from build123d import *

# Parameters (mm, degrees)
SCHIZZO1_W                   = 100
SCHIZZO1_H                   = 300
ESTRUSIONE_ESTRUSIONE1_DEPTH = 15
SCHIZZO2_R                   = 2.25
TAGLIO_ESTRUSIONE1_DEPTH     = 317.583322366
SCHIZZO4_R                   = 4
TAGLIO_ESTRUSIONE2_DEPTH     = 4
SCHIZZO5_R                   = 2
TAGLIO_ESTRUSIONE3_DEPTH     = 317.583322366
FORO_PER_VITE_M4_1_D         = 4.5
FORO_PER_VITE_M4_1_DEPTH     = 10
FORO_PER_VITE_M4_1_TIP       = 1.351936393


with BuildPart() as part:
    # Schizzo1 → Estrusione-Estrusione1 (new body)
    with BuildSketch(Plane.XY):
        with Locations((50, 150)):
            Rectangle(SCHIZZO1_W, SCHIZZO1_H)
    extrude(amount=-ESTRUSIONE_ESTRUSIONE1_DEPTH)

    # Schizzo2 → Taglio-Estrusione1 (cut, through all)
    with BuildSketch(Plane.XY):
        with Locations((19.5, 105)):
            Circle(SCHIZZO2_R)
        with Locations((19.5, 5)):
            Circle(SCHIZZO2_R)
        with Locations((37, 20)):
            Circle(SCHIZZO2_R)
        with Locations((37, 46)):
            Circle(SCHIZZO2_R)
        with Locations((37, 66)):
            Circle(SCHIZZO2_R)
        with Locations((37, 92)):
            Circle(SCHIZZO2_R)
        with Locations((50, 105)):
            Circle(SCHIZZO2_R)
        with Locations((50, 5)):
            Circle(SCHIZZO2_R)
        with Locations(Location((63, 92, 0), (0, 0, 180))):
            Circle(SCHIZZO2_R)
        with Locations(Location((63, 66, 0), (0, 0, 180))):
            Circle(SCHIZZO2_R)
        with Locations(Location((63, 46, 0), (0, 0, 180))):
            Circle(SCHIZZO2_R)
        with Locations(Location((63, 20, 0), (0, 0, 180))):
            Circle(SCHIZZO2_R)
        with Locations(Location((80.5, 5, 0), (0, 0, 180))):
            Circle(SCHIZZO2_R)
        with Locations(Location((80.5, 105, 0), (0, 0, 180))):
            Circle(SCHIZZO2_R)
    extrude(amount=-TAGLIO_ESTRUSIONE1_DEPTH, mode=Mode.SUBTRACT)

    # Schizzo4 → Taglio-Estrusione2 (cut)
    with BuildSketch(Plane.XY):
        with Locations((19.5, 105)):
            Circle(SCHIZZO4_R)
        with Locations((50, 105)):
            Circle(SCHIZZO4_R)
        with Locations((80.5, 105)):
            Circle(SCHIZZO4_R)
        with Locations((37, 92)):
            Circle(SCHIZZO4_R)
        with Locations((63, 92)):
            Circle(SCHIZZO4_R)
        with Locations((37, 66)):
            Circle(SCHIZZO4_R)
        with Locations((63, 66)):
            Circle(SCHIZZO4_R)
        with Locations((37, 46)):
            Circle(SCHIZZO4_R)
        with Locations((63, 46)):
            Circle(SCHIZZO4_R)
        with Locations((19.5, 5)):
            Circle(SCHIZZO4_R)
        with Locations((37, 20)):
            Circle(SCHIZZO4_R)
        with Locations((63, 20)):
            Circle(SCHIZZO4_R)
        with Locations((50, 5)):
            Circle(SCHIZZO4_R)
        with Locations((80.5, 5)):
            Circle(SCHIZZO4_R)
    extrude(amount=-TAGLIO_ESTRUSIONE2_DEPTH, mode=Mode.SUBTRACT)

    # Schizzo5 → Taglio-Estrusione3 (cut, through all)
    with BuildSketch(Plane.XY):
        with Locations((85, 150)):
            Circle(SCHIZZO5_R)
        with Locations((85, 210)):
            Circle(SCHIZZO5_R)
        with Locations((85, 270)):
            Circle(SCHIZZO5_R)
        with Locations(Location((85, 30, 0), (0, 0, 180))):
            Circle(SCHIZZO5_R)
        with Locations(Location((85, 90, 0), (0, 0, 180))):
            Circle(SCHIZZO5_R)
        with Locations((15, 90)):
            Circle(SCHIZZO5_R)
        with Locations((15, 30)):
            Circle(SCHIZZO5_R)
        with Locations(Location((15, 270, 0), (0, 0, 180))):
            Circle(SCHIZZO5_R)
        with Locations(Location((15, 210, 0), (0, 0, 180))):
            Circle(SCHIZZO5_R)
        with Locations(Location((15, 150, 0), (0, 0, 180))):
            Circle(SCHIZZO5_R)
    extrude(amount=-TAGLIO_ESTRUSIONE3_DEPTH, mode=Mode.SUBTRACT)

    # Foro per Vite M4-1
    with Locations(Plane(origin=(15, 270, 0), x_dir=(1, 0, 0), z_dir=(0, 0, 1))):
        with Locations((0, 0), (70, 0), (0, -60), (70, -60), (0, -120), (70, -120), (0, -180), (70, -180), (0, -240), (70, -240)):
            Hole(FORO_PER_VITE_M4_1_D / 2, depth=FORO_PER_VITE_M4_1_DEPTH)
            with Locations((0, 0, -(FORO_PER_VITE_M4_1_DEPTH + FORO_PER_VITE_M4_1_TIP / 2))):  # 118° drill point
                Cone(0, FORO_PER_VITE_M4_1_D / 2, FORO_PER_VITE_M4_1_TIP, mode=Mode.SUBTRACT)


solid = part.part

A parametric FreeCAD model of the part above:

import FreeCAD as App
import Part
import Sketcher
Q = App.Units.Quantity


def add_polygon(sketch, points):
    """Adds a closed chain of lines whose ends are joined by coincident constraints."""
    first, n = sketch.GeometryCount, len(points)
    for a, b in zip(points, points[1:] + points[:1]):
        sketch.addGeometry(Part.LineSegment(App.Vector(*a, 0), App.Vector(*b, 0)), False)
    for i in range(n):
        sketch.addConstraint(Sketcher.Constraint("Coincident", first + i, 2, first + (i + 1) % n, 1))

doc = App.newDocument("Part")
body = doc.addObject("PartDesign::Body", "Body")

# Sketch on XY plane
sketch1 = body.newObject("Sketcher::SketchObject", "Sketch")
sketch1.AttachmentSupport = (doc.getObject("XY_Plane"), [""])
sketch1.MapMode = "FlatFace"
add_polygon(sketch1, [(0, 300), (0, 0), (100, 0), (100, 300)])  # lines 0-3
sketch1.addConstraint(Sketcher.Constraint("Vertical", 0))
sketch1.addConstraint(Sketcher.Constraint("Horizontal", 1))
sketch1.addConstraint(Sketcher.Constraint("Vertical", 2))
sketch1.addConstraint(Sketcher.Constraint("Horizontal", 3))
sketch1.addConstraint(Sketcher.Constraint("Coincident", 0, 2, -1, 1))
sketch1.addConstraint(Sketcher.Constraint("DistanceX", 1, 1, 1, 2, Q("100 mm")))
sketch1.addConstraint(Sketcher.Constraint("DistanceY", 0, 2, 0, 1, Q("300 mm")))
pad1 = body.newObject("PartDesign::Pad", "Pad")
pad1.Profile = sketch1
pad1.Length = 15
pad1.Reversed = True

# Sketch on XY plane
sketch2 = body.newObject("Sketcher::SketchObject", "Sketch001")
sketch2.AttachmentSupport = (doc.getObject("XY_Plane"), [""])
sketch2.MapMode = "FlatFace"
sketch2.addGeometry(Part.Circle(App.Vector(19.5, 105, 0), App.Vector(0, 0, 1), 2.2), False)
sketch2.addGeometry(Part.Circle(App.Vector(19.5, 5, 0), App.Vector(0, 0, 1), 2.2), False)
sketch2.addGeometry(Part.Circle(App.Vector(37, 20, 0), App.Vector(0, 0, 1), 2.2), False)
sketch2.addGeometry(Part.Circle(App.Vector(37, 46, 0), App.Vector(0, 0, 1), 2.2), False)
sketch2.addGeometry(Part.Circle(App.Vector(37, 66, 0), App.Vector(0, 0, 1), 2.2), False)
sketch2.addGeometry(Part.Circle(App.Vector(37, 92, 0), App.Vector(0, 0, 1), 2.2), False)
sketch2.addGeometry(Part.Circle(App.Vector(50, 105, 0), App.Vector(0, 0, 1), 2.2), False)
sketch2.addGeometry(Part.Circle(App.Vector(50, 5, 0), App.Vector(0, 0, 1), 2.2), False)
sketch2.addGeometry(Part.Circle(App.Vector(63, 92, 0), App.Vector(0, 0, 1), 2.2), False)
sketch2.addGeometry(Part.Circle(App.Vector(63, 66, 0), App.Vector(0, 0, 1), 2.2), False)
sketch2.addGeometry(Part.Circle(App.Vector(63, 46, 0), App.Vector(0, 0, 1), 2.2), False)
sketch2.addGeometry(Part.Circle(App.Vector(63, 20, 0), App.Vector(0, 0, 1), 2.2), False)
sketch2.addGeometry(Part.Circle(App.Vector(80.5, 5, 0), App.Vector(0, 0, 1), 2.2), False)
sketch2.addGeometry(Part.Circle(App.Vector(80.5, 105, 0), App.Vector(0, 0, 1), 2.2), False)
sketch2.addConstraint(Sketcher.Constraint("Equal", 0, 1))
sketch2.addConstraint(Sketcher.Constraint("Equal", 1, 2))
sketch2.addConstraint(Sketcher.Constraint("Equal", 2, 3))
sketch2.addConstraint(Sketcher.Constraint("Equal", 3, 4))
sketch2.addConstraint(Sketcher.Constraint("Equal", 4, 5))
sketch2.addConstraint(Sketcher.Constraint("Equal", 5, 6))
sketch2.addConstraint(Sketcher.Constraint("Equal", 6, 7))
sketch2.addConstraint(Sketcher.Constraint("Equal", 7, 8))
sketch2.addConstraint(Sketcher.Constraint("Equal", 8, 9))
sketch2.addConstraint(Sketcher.Constraint("Equal", 9, 10))
sketch2.addConstraint(Sketcher.Constraint("Equal", 10, 11))
sketch2.addConstraint(Sketcher.Constraint("Equal", 11, 12))
sketch2.addConstraint(Sketcher.Constraint("Equal", 12, 13))
sketch2.addConstraint(Sketcher.Constraint("Horizontal", 0, 3, 6, 3))
sketch2.addConstraint(Sketcher.Constraint("Horizontal", 1, 3, 7, 3))
sketch2.addConstraint(Sketcher.Constraint("Horizontal", 5, 3, 8, 3))
sketch2.addConstraint(Sketcher.Constraint("Horizontal", 4, 3, 9, 3))
sketch2.addConstraint(Sketcher.Constraint("Horizontal", 3, 3, 10, 3))
sketch2.addConstraint(Sketcher.Constraint("Horizontal", 2, 3, 11, 3))
sketch2.addConstraint(Sketcher.Constraint("Horizontal", 7, 3, 12, 3))
sketch2.addConstraint(Sketcher.Constraint("Horizontal", 6, 3, 13, 3))
sketch2.addConstraint(Sketcher.Constraint("Vertical", 0, 3, 1, 3))
sketch2.addConstraint(Sketcher.Constraint("Vertical", 2, 3, 3, 3))
sketch2.addConstraint(Sketcher.Constraint("Vertical", 3, 3, 4, 3))
sketch2.addConstraint(Sketcher.Constraint("Vertical", 4, 3, 5, 3))
sketch2.addConstraint(Sketcher.Constraint("Vertical", 6, 3, 7, 3))
sketch2.addConstraint(Sketcher.Constraint("Vertical", 8, 3, 9, 3))
sketch2.addConstraint(Sketcher.Constraint("Vertical", 9, 3, 10, 3))
sketch2.addConstraint(Sketcher.Constraint("Vertical", 10, 3, 11, 3))
sketch2.addConstraint(Sketcher.Constraint("Vertical", 12, 3, 13, 3))
sketch2.addConstraint(Sketcher.Constraint("Diameter", 0, Q("4.5 mm")))
sketch2.addConstraint(Sketcher.Constraint("DistanceY", -1, 1, 0, 3, Q("105 mm")))
sketch2.addConstraint(Sketcher.Constraint("DistanceY", -1, 1, 1, 3, Q("5 mm")))
sketch2.addConstraint(Sketcher.Constraint("DistanceX", -1, 1, 2, 3, Q("37 mm")))
sketch2.addConstraint(Sketcher.Constraint("DistanceY", -1, 1, 2, 3, Q("20 mm")))
sketch2.addConstraint(Sketcher.Constraint("DistanceY", -1, 1, 3, 3, Q("46 mm")))
sketch2.addConstraint(Sketcher.Constraint("DistanceY", -1, 1, 4, 3, Q("66 mm")))
sketch2.addConstraint(Sketcher.Constraint("DistanceY", -1, 1, 5, 3, Q("92 mm")))
sketch2.addConstraint(Sketcher.Constraint("DistanceX", -1, 1, 6, 3, Q("50 mm")))
sketch2.addConstraint(Sketcher.Constraint("DistanceX", -1, 1, 8, 3, Q("63 mm")))
sketch2.addConstraint(Sketcher.Constraint("DistanceX", -1, 1, 0, 3, Q("19.5 mm")))
sketch2.addConstraint(Sketcher.Constraint("DistanceX", -1, 1, 12, 3, Q("80.5 mm")))
pocket1 = body.newObject("PartDesign::Pocket", "Pocket")
pocket1.Profile = sketch2
pocket1.Type = "ThroughAll"

# Sketch on XY plane
sketch3 = body.newObject("Sketcher::SketchObject", "Sketch002")
sketch3.AttachmentSupport = (doc.getObject("XY_Plane"), [""])
sketch3.MapMode = "FlatFace"
sketch3.addGeometry(Part.Circle(App.Vector(19.5, 105, 0), App.Vector(0, 0, 1), 4), False)
sketch3.addGeometry(Part.Circle(App.Vector(50, 105, 0), App.Vector(0, 0, 1), 4), False)
sketch3.addGeometry(Part.Circle(App.Vector(80.5, 105, 0), App.Vector(0, 0, 1), 4), False)
sketch3.addGeometry(Part.Circle(App.Vector(37, 92, 0), App.Vector(0, 0, 1), 4), False)
sketch3.addGeometry(Part.Circle(App.Vector(63, 92, 0), App.Vector(0, 0, 1), 4), False)
sketch3.addGeometry(Part.Circle(App.Vector(37, 66, 0), App.Vector(0, 0, 1), 4), False)
sketch3.addGeometry(Part.Circle(App.Vector(63, 66, 0), App.Vector(0, 0, 1), 4), False)
sketch3.addGeometry(Part.Circle(App.Vector(37, 46, 0), App.Vector(0, 0, 1), 4), False)
sketch3.addGeometry(Part.Circle(App.Vector(63, 46, 0), App.Vector(0, 0, 1), 4), False)
sketch3.addGeometry(Part.Circle(App.Vector(19.5, 5, 0), App.Vector(0, 0, 1), 4), False)
sketch3.addGeometry(Part.Circle(App.Vector(37, 20, 0), App.Vector(0, 0, 1), 4), False)
sketch3.addGeometry(Part.Circle(App.Vector(63, 20, 0), App.Vector(0, 0, 1), 4), False)
sketch3.addGeometry(Part.Circle(App.Vector(50, 5, 0), App.Vector(0, 0, 1), 4), False)
sketch3.addGeometry(Part.Circle(App.Vector(80.5, 5, 0), App.Vector(0, 0, 1), 4), False)
sketch3.addConstraint(Sketcher.Constraint("Equal", 0, 1))
sketch3.addConstraint(Sketcher.Constraint("Equal", 1, 2))
sketch3.addConstraint(Sketcher.Constraint("Equal", 2, 3))
sketch3.addConstraint(Sketcher.Constraint("Equal", 3, 4))
sketch3.addConstraint(Sketcher.Constraint("Equal", 4, 5))
sketch3.addConstraint(Sketcher.Constraint("Equal", 5, 6))
sketch3.addConstraint(Sketcher.Constraint("Equal", 6, 7))
sketch3.addConstraint(Sketcher.Constraint("Equal", 7, 8))
sketch3.addConstraint(Sketcher.Constraint("Equal", 8, 9))
sketch3.addConstraint(Sketcher.Constraint("Equal", 9, 10))
sketch3.addConstraint(Sketcher.Constraint("Equal", 10, 11))
sketch3.addConstraint(Sketcher.Constraint("Equal", 11, 12))
sketch3.addConstraint(Sketcher.Constraint("Equal", 12, 13))
sketch3.addConstraint(Sketcher.Constraint("Horizontal", 0, 3, 1, 3))
sketch3.addConstraint(Sketcher.Constraint("Horizontal", 1, 3, 2, 3))
sketch3.addConstraint(Sketcher.Constraint("Horizontal", 3, 3, 4, 3))
sketch3.addConstraint(Sketcher.Constraint("Horizontal", 5, 3, 6, 3))
sketch3.addConstraint(Sketcher.Constraint("Horizontal", 7, 3, 8, 3))
sketch3.addConstraint(Sketcher.Constraint("Horizontal", 10, 3, 11, 3))
sketch3.addConstraint(Sketcher.Constraint("Horizontal", 9, 3, 12, 3))
sketch3.addConstraint(Sketcher.Constraint("Horizontal", 12, 3, 13, 3))
sketch3.addConstraint(Sketcher.Constraint("Vertical", 3, 3, 5, 3))
sketch3.addConstraint(Sketcher.Constraint("Vertical", 4, 3, 6, 3))
sketch3.addConstraint(Sketcher.Constraint("Vertical", 5, 3, 7, 3))
sketch3.addConstraint(Sketcher.Constraint("Vertical", 6, 3, 8, 3))
sketch3.addConstraint(Sketcher.Constraint("Vertical", 0, 3, 9, 3))
sketch3.addConstraint(Sketcher.Constraint("Vertical", 7, 3, 10, 3))
sketch3.addConstraint(Sketcher.Constraint("Vertical", 8, 3, 11, 3))
sketch3.addConstraint(Sketcher.Constraint("Vertical", 1, 3, 12, 3))
sketch3.addConstraint(Sketcher.Constraint("Vertical", 2, 3, 13, 3))
sketch3.addConstraint(Sketcher.Constraint("Diameter", 0, Q("8 mm")))
sketch3.addConstraint(Sketcher.Constraint("DistanceY", -1, 1, 0, 3, Q("105 mm")))
sketch3.addConstraint(Sketcher.Constraint("DistanceX", -1, 1, 1, 3, Q("50 mm")))
sketch3.addConstraint(Sketcher.Constraint("DistanceX", -1, 1, 3, 3, Q("37 mm")))
sketch3.addConstraint(Sketcher.Constraint("DistanceY", -1, 1, 3, 3, Q("92 mm")))
sketch3.addConstraint(Sketcher.Constraint("DistanceX", -1, 1, 4, 3, Q("63 mm")))
sketch3.addConstraint(Sketcher.Constraint("DistanceY", -1, 1, 5, 3, Q("66 mm")))
sketch3.addConstraint(Sketcher.Constraint("DistanceY", -1, 1, 7, 3, Q("46 mm")))
sketch3.addConstraint(Sketcher.Constraint("DistanceY", -1, 1, 9, 3, Q("5 mm")))
sketch3.addConstraint(Sketcher.Constraint("DistanceY", -1, 1, 10, 3, Q("20 mm")))
sketch3.addConstraint(Sketcher.Constraint("DistanceX", 0, 3, 2, 3, Q("61 mm")))
sketch3.addConstraint(Sketcher.Constraint("DistanceX", -1, 1, 0, 3, Q("19.5 mm")))
pocket2 = body.newObject("PartDesign::Pocket", "Pocket001")
pocket2.Profile = sketch3
pocket2.Length = 4

# Sketch on XY plane
sketch4 = body.newObject("Sketcher::SketchObject", "Sketch003")
sketch4.AttachmentSupport = (doc.getObject("XY_Plane"), [""])
sketch4.MapMode = "FlatFace"
sketch4.addGeometry(Part.Circle(App.Vector(85, 150, 0), App.Vector(0, 0, 1), 2), False)
sketch4.addGeometry(Part.Circle(App.Vector(85, 210, 0), App.Vector(0, 0, 1), 2), False)
sketch4.addGeometry(Part.Circle(App.Vector(85, 270, 0), App.Vector(0, 0, 1), 2), False)
sketch4.addGeometry(Part.Circle(App.Vector(85, 30, 0), App.Vector(0, 0, 1), 2), False)
sketch4.addGeometry(Part.Circle(App.Vector(85, 90, 0), App.Vector(0, 0, 1), 2), False)
sketch4.addGeometry(Part.Circle(App.Vector(15, 90, 0), App.Vector(0, 0, 1), 2), False)
sketch4.addGeometry(Part.Circle(App.Vector(15, 30, 0), App.Vector(0, 0, 1), 2), False)
sketch4.addGeometry(Part.Circle(App.Vector(15, 270, 0), App.Vector(0, 0, 1), 2), False)
sketch4.addGeometry(Part.Circle(App.Vector(15, 210, 0), App.Vector(0, 0, 1), 2), False)
sketch4.addGeometry(Part.Circle(App.Vector(15, 150, 0), App.Vector(0, 0, 1), 2), False)
sketch4.addConstraint(Sketcher.Constraint("Equal", 0, 1))
sketch4.addConstraint(Sketcher.Constraint("Equal", 1, 2))
sketch4.addConstraint(Sketcher.Constraint("Equal", 2, 3))
sketch4.addConstraint(Sketcher.Constraint("Equal", 3, 4))
sketch4.addConstraint(Sketcher.Constraint("Equal", 4, 5))
sketch4.addConstraint(Sketcher.Constraint("Equal", 5, 6))
sketch4.addConstraint(Sketcher.Constraint("Equal", 6, 7))
sketch4.addConstraint(Sketcher.Constraint("Equal", 7, 8))
sketch4.addConstraint(Sketcher.Constraint("Equal", 8, 9))
sketch4.addConstraint(Sketcher.Constraint("Horizontal", 4, 3, 5, 3))
sketch4.addConstraint(Sketcher.Constraint("Horizontal", 3, 3, 6, 3))
sketch4.addConstraint(Sketcher.Constraint("Horizontal", 2, 3, 7, 3))
sketch4.addConstraint(Sketcher.Constraint("Horizontal", 1, 3, 8, 3))
sketch4.addConstraint(Sketcher.Constraint("Horizontal", 0, 3, 9, 3))
sketch4.addConstraint(Sketcher.Constraint("Vertical", 0, 3, 1, 3))
sketch4.addConstraint(Sketcher.Constraint("Vertical", 1, 3, 2, 3))
sketch4.addConstraint(Sketcher.Constraint("Vertical", 2, 3, 3, 3))
sketch4.addConstraint(Sketcher.Constraint("Vertical", 3, 3, 4, 3))
sketch4.addConstraint(Sketcher.Constraint("Vertical", 5, 3, 6, 3))
sketch4.addConstraint(Sketcher.Constraint("Vertical", 6, 3, 7, 3))
sketch4.addConstraint(Sketcher.Constraint("Vertical", 7, 3, 8, 3))
sketch4.addConstraint(Sketcher.Constraint("Vertical", 8, 3, 9, 3))
sketch4.addConstraint(Sketcher.Constraint("Diameter", 0, Q("4 mm")))
sketch4.addConstraint(Sketcher.Constraint("DistanceX", -1, 1, 0, 3, Q("85 mm")))
sketch4.addConstraint(Sketcher.Constraint("DistanceY", -1, 1, 0, 3, Q("150 mm")))
sketch4.addConstraint(Sketcher.Constraint("DistanceY", -1, 1, 1, 3, Q("210 mm")))
sketch4.addConstraint(Sketcher.Constraint("DistanceY", -1, 1, 2, 3, Q("270 mm")))
sketch4.addConstraint(Sketcher.Constraint("DistanceY", -1, 1, 3, 3, Q("30 mm")))
sketch4.addConstraint(Sketcher.Constraint("DistanceY", -1, 1, 4, 3, Q("90 mm")))
sketch4.addConstraint(Sketcher.Constraint("DistanceX", -1, 1, 5, 3, Q("15 mm")))
pocket3 = body.newObject("PartDesign::Pocket", "Pocket002")
pocket3.Profile = sketch4
pocket3.Type = "ThroughAll"

# Sketch on XY plane
sketch5 = body.newObject("Sketcher::SketchObject", "Sketch004")
sketch5.AttachmentSupport = (doc.getObject("XY_Plane"), [""])
sketch5.MapMode = "FlatFace"
sketch5.addGeometry(Part.Circle(App.Vector(15, 270, 0), App.Vector(0, 0, 1), 2.2), False)
sketch5.addGeometry(Part.Circle(App.Vector(85, 270, 0), App.Vector(0, 0, 1), 2.2), False)
sketch5.addGeometry(Part.Circle(App.Vector(15, 210, 0), App.Vector(0, 0, 1), 2.2), False)
sketch5.addGeometry(Part.Circle(App.Vector(85, 210, 0), App.Vector(0, 0, 1), 2.2), False)
sketch5.addGeometry(Part.Circle(App.Vector(15, 150, 0), App.Vector(0, 0, 1), 2.2), False)
sketch5.addGeometry(Part.Circle(App.Vector(85, 150, 0), App.Vector(0, 0, 1), 2.2), False)
sketch5.addGeometry(Part.Circle(App.Vector(15, 90, 0), App.Vector(0, 0, 1), 2.2), False)
sketch5.addGeometry(Part.Circle(App.Vector(85, 90, 0), App.Vector(0, 0, 1), 2.2), False)
sketch5.addGeometry(Part.Circle(App.Vector(15, 30, 0), App.Vector(0, 0, 1), 2.2), False)
sketch5.addGeometry(Part.Circle(App.Vector(85, 30, 0), App.Vector(0, 0, 1), 2.2), False)
sketch5.addConstraint(Sketcher.Constraint("Equal", 0, 1))
sketch5.addConstraint(Sketcher.Constraint("Equal", 1, 2))
sketch5.addConstraint(Sketcher.Constraint("Equal", 2, 3))
sketch5.addConstraint(Sketcher.Constraint("Equal", 3, 4))
sketch5.addConstraint(Sketcher.Constraint("Equal", 4, 5))
sketch5.addConstraint(Sketcher.Constraint("Equal", 5, 6))
sketch5.addConstraint(Sketcher.Constraint("Equal", 6, 7))
sketch5.addConstraint(Sketcher.Constraint("Equal", 7, 8))
sketch5.addConstraint(Sketcher.Constraint("Equal", 8, 9))
sketch5.addConstraint(Sketcher.Constraint("Horizontal", 0, 3, 1, 3))
sketch5.addConstraint(Sketcher.Constraint("Horizontal", 2, 3, 3, 3))
sketch5.addConstraint(Sketcher.Constraint("Horizontal", 4, 3, 5, 3))
sketch5.addConstraint(Sketcher.Constraint("Horizontal", 6, 3, 7, 3))
sketch5.addConstraint(Sketcher.Constraint("Horizontal", 8, 3, 9, 3))
sketch5.addConstraint(Sketcher.Constraint("Vertical", 0, 3, 2, 3))
sketch5.addConstraint(Sketcher.Constraint("Vertical", 1, 3, 3, 3))
sketch5.addConstraint(Sketcher.Constraint("Vertical", 2, 3, 4, 3))
sketch5.addConstraint(Sketcher.Constraint("Vertical", 3, 3, 5, 3))
sketch5.addConstraint(Sketcher.Constraint("Vertical", 4, 3, 6, 3))
sketch5.addConstraint(Sketcher.Constraint("Vertical", 5, 3, 7, 3))
sketch5.addConstraint(Sketcher.Constraint("Vertical", 6, 3, 8, 3))
sketch5.addConstraint(Sketcher.Constraint("Vertical", 7, 3, 9, 3))
sketch5.addConstraint(Sketcher.Constraint("Diameter", 0, Q("4.5 mm")))
sketch5.addConstraint(Sketcher.Constraint("DistanceX", -1, 1, 0, 3, Q("15 mm")))
sketch5.addConstraint(Sketcher.Constraint("DistanceY", -1, 1, 0, 3, Q("270 mm")))
sketch5.addConstraint(Sketcher.Constraint("DistanceX", -1, 1, 1, 3, Q("85 mm")))
sketch5.addConstraint(Sketcher.Constraint("DistanceY", -1, 1, 2, 3, Q("210 mm")))
sketch5.addConstraint(Sketcher.Constraint("DistanceY", -1, 1, 4, 3, Q("150 mm")))
sketch5.addConstraint(Sketcher.Constraint("DistanceY", -1, 1, 6, 3, Q("90 mm")))
sketch5.addConstraint(Sketcher.Constraint("DistanceY", -1, 1, 8, 3, Q("30 mm")))
doc.recompute()
hole = body.newObject("PartDesign::Hole", "Hole")
hole.Profile = sketch5
hole.ThreadType = "None"
hole.Diameter = 4.5
hole.DepthType = "Dimension"
hole.Depth = 10
hole.DrillPoint = "Angled"
hole.DrillPointAngle = 118

doc.recompute()
